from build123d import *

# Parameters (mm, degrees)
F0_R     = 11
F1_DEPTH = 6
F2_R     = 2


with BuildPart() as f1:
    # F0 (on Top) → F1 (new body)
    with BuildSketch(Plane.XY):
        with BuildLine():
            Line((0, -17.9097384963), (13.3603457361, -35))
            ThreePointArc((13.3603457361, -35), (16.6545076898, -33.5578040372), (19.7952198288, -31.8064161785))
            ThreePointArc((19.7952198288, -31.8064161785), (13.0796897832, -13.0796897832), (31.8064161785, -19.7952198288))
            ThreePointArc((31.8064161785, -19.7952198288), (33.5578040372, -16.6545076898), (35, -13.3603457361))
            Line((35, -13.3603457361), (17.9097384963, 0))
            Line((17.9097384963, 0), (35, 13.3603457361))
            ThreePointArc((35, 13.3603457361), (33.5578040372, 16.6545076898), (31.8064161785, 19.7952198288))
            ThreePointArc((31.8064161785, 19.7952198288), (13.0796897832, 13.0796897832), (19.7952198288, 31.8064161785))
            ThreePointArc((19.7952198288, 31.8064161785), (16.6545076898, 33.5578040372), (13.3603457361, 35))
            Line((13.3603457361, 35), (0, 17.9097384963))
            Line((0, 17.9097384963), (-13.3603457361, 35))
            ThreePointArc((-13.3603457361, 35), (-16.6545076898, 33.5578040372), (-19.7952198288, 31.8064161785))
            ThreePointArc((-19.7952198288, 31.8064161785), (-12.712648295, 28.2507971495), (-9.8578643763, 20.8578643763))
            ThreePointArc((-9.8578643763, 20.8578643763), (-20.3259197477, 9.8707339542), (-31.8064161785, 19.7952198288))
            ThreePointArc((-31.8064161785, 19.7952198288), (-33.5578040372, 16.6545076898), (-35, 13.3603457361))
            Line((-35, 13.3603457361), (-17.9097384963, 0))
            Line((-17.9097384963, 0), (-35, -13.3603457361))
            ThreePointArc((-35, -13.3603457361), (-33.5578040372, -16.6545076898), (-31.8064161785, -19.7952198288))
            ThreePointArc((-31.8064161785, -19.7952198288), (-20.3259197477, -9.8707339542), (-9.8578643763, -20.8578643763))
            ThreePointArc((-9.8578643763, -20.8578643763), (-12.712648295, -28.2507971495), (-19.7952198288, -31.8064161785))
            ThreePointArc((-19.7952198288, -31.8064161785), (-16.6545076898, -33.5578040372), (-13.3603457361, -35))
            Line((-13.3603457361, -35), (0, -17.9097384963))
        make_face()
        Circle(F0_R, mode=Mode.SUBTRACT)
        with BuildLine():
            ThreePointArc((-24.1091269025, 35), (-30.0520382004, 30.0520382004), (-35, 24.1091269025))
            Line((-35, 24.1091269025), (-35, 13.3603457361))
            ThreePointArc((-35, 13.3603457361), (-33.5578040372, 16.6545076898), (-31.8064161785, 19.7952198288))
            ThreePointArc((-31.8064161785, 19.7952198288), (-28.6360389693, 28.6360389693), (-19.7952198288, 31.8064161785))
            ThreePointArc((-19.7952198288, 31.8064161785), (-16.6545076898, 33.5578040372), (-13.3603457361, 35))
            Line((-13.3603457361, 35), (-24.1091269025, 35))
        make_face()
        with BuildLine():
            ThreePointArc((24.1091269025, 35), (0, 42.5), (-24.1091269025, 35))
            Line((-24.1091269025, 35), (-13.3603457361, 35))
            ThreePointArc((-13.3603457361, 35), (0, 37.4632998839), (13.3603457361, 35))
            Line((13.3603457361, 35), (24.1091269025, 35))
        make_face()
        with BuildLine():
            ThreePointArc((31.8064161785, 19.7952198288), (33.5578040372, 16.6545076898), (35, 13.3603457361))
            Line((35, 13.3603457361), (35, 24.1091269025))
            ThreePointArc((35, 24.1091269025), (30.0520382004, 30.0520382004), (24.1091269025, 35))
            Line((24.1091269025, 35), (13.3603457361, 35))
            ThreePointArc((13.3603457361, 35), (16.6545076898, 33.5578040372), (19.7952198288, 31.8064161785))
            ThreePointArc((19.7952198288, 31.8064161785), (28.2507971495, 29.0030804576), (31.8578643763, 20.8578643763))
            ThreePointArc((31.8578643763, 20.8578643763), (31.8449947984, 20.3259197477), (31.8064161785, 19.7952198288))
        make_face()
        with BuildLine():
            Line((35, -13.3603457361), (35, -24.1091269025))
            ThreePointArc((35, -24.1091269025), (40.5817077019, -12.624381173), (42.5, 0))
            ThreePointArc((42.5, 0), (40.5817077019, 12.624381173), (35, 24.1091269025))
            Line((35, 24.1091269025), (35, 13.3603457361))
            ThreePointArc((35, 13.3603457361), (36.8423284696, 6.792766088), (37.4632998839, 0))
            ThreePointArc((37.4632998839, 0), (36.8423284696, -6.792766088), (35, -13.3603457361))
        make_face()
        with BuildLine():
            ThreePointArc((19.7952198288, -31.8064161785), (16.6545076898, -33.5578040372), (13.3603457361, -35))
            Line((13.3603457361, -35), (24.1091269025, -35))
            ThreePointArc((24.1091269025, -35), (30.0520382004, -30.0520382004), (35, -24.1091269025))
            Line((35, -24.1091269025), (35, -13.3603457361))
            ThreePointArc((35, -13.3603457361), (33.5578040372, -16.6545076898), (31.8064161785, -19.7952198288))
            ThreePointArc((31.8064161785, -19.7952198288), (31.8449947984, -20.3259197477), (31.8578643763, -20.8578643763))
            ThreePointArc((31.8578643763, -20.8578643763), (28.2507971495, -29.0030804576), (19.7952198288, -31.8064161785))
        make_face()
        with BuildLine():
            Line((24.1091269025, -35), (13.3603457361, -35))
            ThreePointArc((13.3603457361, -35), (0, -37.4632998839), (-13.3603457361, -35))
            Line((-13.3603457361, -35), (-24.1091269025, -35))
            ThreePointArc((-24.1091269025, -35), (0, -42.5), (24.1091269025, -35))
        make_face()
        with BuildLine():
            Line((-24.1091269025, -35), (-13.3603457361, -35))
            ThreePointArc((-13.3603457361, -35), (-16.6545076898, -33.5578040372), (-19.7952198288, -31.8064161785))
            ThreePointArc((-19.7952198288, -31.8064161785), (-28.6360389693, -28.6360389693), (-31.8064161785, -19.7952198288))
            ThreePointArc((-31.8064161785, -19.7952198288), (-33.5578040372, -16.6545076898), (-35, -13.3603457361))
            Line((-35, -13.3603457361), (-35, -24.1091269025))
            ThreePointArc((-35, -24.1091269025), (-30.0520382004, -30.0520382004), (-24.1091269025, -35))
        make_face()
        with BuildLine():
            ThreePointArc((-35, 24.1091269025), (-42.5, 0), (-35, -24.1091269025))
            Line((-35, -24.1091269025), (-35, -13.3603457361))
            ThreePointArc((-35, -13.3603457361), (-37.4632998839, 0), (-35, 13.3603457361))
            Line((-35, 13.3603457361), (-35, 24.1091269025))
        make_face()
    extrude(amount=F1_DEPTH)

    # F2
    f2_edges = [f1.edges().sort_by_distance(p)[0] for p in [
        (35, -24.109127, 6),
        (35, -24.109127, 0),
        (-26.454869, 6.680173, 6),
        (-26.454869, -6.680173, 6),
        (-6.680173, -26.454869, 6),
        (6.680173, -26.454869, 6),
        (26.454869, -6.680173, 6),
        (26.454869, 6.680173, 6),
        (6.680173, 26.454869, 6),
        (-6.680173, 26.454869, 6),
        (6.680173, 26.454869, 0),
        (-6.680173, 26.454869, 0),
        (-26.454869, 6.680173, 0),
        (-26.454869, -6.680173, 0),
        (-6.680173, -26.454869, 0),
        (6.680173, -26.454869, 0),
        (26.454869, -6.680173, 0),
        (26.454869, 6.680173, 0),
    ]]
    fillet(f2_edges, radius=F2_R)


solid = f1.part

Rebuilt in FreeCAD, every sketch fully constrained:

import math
import FreeCAD as App
import Part
import Sketcher
from FreeCAD import Vector
Q = App.Units.Quantity


def edges_at(feature, points):
    """Names of the edges that pass closest to the given points."""
    edges = feature.Shape.Edges
    near = lambda p: min(range(len(edges)), key=lambda i: edges[i].distToShape(Part.Vertex(*p))[0])
    return sorted({f"Edge{near(p) + 1}" for p in points})

doc = App.newDocument("Part")
params = doc.addObject("Spreadsheet::Sheet", "Params")
for row, (alias, value) in enumerate([
    ("sketch1_diameter", "22 mm"),
    ("sketch1_radius", "42.5 mm"),
    ("pad1_length", "6 mm"),
    ("fillet_radius", "2 mm"),
], start=1):
    params.set(f"A{row}", alias)
    params.set(f"B{row}", "=" + value)
    params.setAlias(f"B{row}", alias)

body = doc.addObject("PartDesign::Body", "Body")

# Sketch on XY plane
sketch1 = body.newObject("Sketcher::SketchObject", "Sketch")
sketch1.AttachmentSupport = (doc.getObject("XY_Plane"), [""])
sketch1.MapMode = "FlatFace"
sketch1.addGeometry(Part.ArcOfCircle(Part.Circle(Vector(0, 0, 0), Vector(0, 0, 1), 42.5), math.radians(-145), math.radians(-125)), False)
sketch1.addGeometry(Part.ArcOfCircle(Part.Circle(Vector(0, 0, 0), Vector(0, 0, 1), 42.5), math.radians(-125), math.radians(-55)), False)
sketch1.addGeometry(Part.ArcOfCircle(Part.Circle(Vector(0, 0, 0), Vector(0, 0, 1), 42.5), math.radians(-55), math.radians(-35)), False)
sketch1.addGeometry(Part.ArcOfCircle(Part.Circle(Vector(0, 0, 0), Vector(0, 0, 1), 42.5), math.radians(-35), math.radians(0)), False)
sketch1.addGeometry(Part.ArcOfCircle(Part.Circle(Vector(0, 0, 0), Vector(0, 0, 1), 42.5), math.radians(0), math.radians(35)), False)
sketch1.addGeometry(Part.ArcOfCircle(Part.Circle(Vector(0, 0, 0), Vector(0, 0, 1), 42.5), math.radians(35), math.radians(55)), False)
sketch1.addGeometry(Part.ArcOfCircle(Part.Circle(Vector(0, 0, 0), Vector(0, 0, 1), 42.5), math.radians(55), math.radians(125)), False)
sketch1.addGeometry(Part.ArcOfCircle(Part.Circle(Vector(0, 0, 0), Vector(0, 0, 1), 42.5), math.radians(125), math.radians(145)), False)
sketch1.addGeometry(Part.ArcOfCircle(Part.Circle(Vector(0, 0, 0), Vector(0, 0, 1), 42.5), math.radians(145), math.radians(215)), False)
sketch1.addGeometry(Part.ArcOfCircle(Part.Circle(Vector(-20.9, -20.9, 0), Vector(0, 0, 1), 11), math.radians(-84), math.radians(0)), False)
sketch1.addGeometry(Part.ArcOfCircle(Part.Circle(Vector(-20.9, -20.9, 0), Vector(0, 0, 1), 11), math.radians(174), math.radians(276)), False)
sketch1.addGeometry(Part.ArcOfCircle(Part.Circle(Vector(-20.9, -20.9, 0), Vector(0, 0, 1), 11), math.radians(0), math.radians(174)), False)
sketch1.addGeometry(Part.LineSegment(Vector(-17.9, 0, 0), Vector(-35, -13.4, 0)), False)
sketch1.addGeometry(Part.ArcOfCircle(Part.Circle(Vector(0, 0, 0), Vector(0, 0, 1), 37.5), math.radians(159), math.radians(201)), False)
sketch1.addGeometry(Part.LineSegment(Vector(-35, 13.4, 0), Vector(-17.9, 0, 0)), False)
sketch1.addGeometry(Part.ArcOfCircle(Part.Circle(Vector(0, 0, 0), Vector(0, 0, 1), 37.5), math.radians(-111), math.radians(-69)), False)
sketch1.addGeometry(Part.LineSegment(Vector(-13.4, -35, 0), Vector(0, -17.9, 0)), False)
sketch1.addGeometry(Part.LineSegment(Vector(0, -17.9, 0), Vector(13.4, -35, 0)), False)
sketch1.addGeometry(Part.ArcOfCircle(Part.Circle(Vector(20.9, -20.9, 0), Vector(0, 0, 1), 11), math.radians(6), math.radians(264)), False)
sketch1.addGeometry(Part.ArcOfCircle(Part.Circle(Vector(20.9, -20.9, 0), Vector(0, 0, 1), 11), math.radians(0), math.radians(5.54)), False)
sketch1.addGeometry(Part.ArcOfCircle(Part.Circle(Vector(20.9, -20.9, 0), Vector(0, 0, 1), 11), math.radians(-96), math.radians(0)), False)
sketch1.addGeometry(Part.Circle(Vector(0, 0, 0), Vector(0, 0, 1), 11), False)
sketch1.addGeometry(Part.ArcOfCircle(Part.Circle(Vector(-20.9, 20.9, 0), Vector(0, 0, 1), 11), math.radians(-174), math.radians(0)), False)
sketch1.addGeometry(Part.ArcOfCircle(Part.Circle(Vector(-20.9, 20.9, 0), Vector(0, 0, 1), 11), math.radians(84), math.radians(186)), False)
sketch1.addGeometry(Part.ArcOfCircle(Part.Circle(Vector(-20.9, 20.9, 0), Vector(0, 0, 1), 11), math.radians(0), math.radians(84)), False)
sketch1.addGeometry(Part.ArcOfCircle(Part.Circle(Vector(0, 0, 0), Vector(0, 0, 1), 37.5), math.radians(69), math.radians(111)), False)
sketch1.addGeometry(Part.LineSegment(Vector(13.4, 35, 0), Vector(0, 17.9, 0)), False)
sketch1.addGeometry(Part.LineSegment(Vector(0, 17.9, 0), Vector(-13.4, 35, 0)), False)
sketch1.addGeometry(Part.ArcOfCircle(Part.Circle(Vector(0, 0, 0), Vector(0, 0, 1), 37.5), math.radians(-21), math.radians(0)), False)
sketch1.addGeometry(Part.LineSegment(Vector(35, -13.4, 0), Vector(17.9, 0, 0)), False)
sketch1.addGeometry(Part.LineSegment(Vector(17.9, 0, 0), Vector(35, 13.4, 0)), False)
sketch1.addGeometry(Part.ArcOfCircle(Part.Circle(Vector(0, 0, 0), Vector(0, 0, 1), 37.5), math.radians(0), math.radians(21)), False)
sketch1.addGeometry(Part.ArcOfCircle(Part.Circle(Vector(20.9, 20.9, 0), Vector(0, 0, 1), 11), math.radians(96), math.radians(354)), False)
sketch1.addGeometry(Part.ArcOfCircle(Part.Circle(Vector(20.9, 20.9, 0), Vector(0, 0, 1), 11), math.radians(0), math.radians(96)), False)
sketch1.addGeometry(Part.ArcOfCircle(Part.Circle(Vector(20.9, 20.9, 0), Vector(0, 0, 1), 11), math.radians(-5.54), math.radians(0)), False)
sketch1.addConstraint(Sketcher.Constraint("Tangent", 0, 2, 1, 1))
sketch1.addConstraint(Sketcher.Constraint("Tangent", 1, 2, 2, 1))
sketch1.addConstraint(Sketcher.Constraint("Tangent", 2, 2, 3, 1))
sketch1.addConstraint(Sketcher.Constraint("Tangent", 3, 2, 4, 1))
sketch1.addConstraint(Sketcher.Constraint("Tangent", 4, 2, 5, 1))
sketch1.addConstraint(Sketcher.Constraint("Tangent", 5, 2, 6, 1))
sketch1.addConstraint(Sketcher.Constraint("Tangent", 6, 2, 7, 1))
sketch1.addConstraint(Sketcher.Constraint("Tangent", 7, 2, 8, 1))
sketch1.addConstraint(Sketcher.Constraint("Tangent", 8, 2, 0, 1))
sketch1.addConstraint(Sketcher.Constraint("Tangent", 9, 1, 10, 2))
sketch1.addConstraint(Sketcher.Constraint("Tangent", 10, 1, 11, 2))
sketch1.addConstraint(Sketcher.Constraint("Tangent", 11, 1, 9, 2))
sketch1.addConstraint(Sketcher.Constraint("Coincident", 12, 2, 13, 2))
sketch1.addConstraint(Sketcher.Constraint("Coincident", 13, 1, 14, 1))
sketch1.addConstraint(Sketcher.Constraint("Coincident", 14, 2, 12, 1))
sketch1.addConstraint(Sketcher.Constraint("Coincident", 15, 1, 16, 1))
sketch1.addConstraint(Sketcher.Constraint("Coincident", 16, 2, 17, 1))
sketch1.addConstraint(Sketcher.Constraint("Coincident", 17, 2, 15, 2))
sketch1.addConstraint(Sketcher.Constraint("Tangent", 18, 1, 19, 2))
sketch1.addConstraint(Sketcher.Constraint("Tangent", 19, 1, 20, 2))
sketch1.addConstraint(Sketcher.Constraint("Tangent", 20, 1, 18, 2))
sketch1.addConstraint(Sketcher.Constraint("Tangent", 22, 1, 23, 2))
sketch1.addConstraint(Sketcher.Constraint("Tangent", 23, 1, 24, 2))
sketch1.addConstraint(Sketcher.Constraint("Tangent", 24, 1, 22, 2))
sketch1.addConstraint(Sketcher.Constraint("Coincident", 25, 1, 26, 1))
sketch1.addConstraint(Sketcher.Constraint("Coincident", 26, 2, 27, 1))
sketch1.addConstraint(Sketcher.Constraint("Coincident", 27, 2, 25, 2))
sketch1.addConstraint(Sketcher.Constraint("Coincident", 28, 1, 29, 1))
sketch1.addConstraint(Sketcher.Constraint("Coincident", 29, 2, 30, 1))
sketch1.addConstraint(Sketcher.Constraint("Coincident", 30, 2, 31, 2))
sketch1.addConstraint(Sketcher.Constraint("Tangent", 31, 1, 28, 2))
sketch1.addConstraint(Sketcher.Constraint("Tangent", 32, 1, 33, 2))
sketch1.addConstraint(Sketcher.Constraint("Tangent", 33, 1, 34, 2))
sketch1.addConstraint(Sketcher.Constraint("Tangent", 34, 1, 32, 2))
sketch1.addConstraint(Sketcher.Constraint("Coincident", 0, 3, -1, 1))
sketch1.addConstraint(Sketcher.Constraint("Coincident", 2, 3, -1, 1))
sketch1.addConstraint(Sketcher.Constraint("Coincident", 4, 3, -1, 1))
sketch1.addConstraint(Sketcher.Constraint("Coincident", 6, 3, -1, 1))
sketch1.addConstraint(Sketcher.Constraint("Coincident", 13, 3, -1, 1))
sketch1.addConstraint(Sketcher.Constraint("Coincident", 15, 3, -1, 1))
sketch1.addConstraint(Sketcher.Constraint("Coincident", 21, 3, -1, 1))
sketch1.addConstraint(Sketcher.Constraint("Coincident", 25, 3, -1, 1))
sketch1.addConstraint(Sketcher.Constraint("Coincident", 28, 3, -1, 1))
sketch1.addConstraint(Sketcher.Constraint("Equal", 13, 15))
sketch1.addConstraint(Sketcher.Constraint("Equal", 11, 18))
sketch1.addConstraint(Sketcher.Constraint("Equal", 20, 21))
sketch1.addConstraint(Sketcher.Constraint("Equal", 21, 22))
sketch1.addConstraint(Sketcher.Constraint("Equal", 15, 25))
sketch1.addConstraint(Sketcher.Constraint("Equal", 25, 28))
sketch1.addConstraint(Sketcher.Constraint("Equal", 28, 31))
sketch1.addConstraint(Sketcher.Constraint("Equal", 24, 32))
sketch1.addConstraint(Sketcher.Constraint("Symmetric", 18, 3, 22, 3, -1, 1))
sketch1.addConstraint(Sketcher.Constraint("Symmetric", 9, 3, 32, 3, -1, 1))
sketch1.addConstraint(Sketcher.Constraint("Symmetric", 16, 2, 26, 2, -1, 1))
sketch1.addConstraint(Sketcher.Constraint("Symmetric", 14, 2, 29, 2, -1, 1))
sketch1.addConstraint(Sketcher.Constraint("Symmetric", 9, 3, 18, 3, -2))
sketch1.addConstraint(Sketcher.Constraint("PointOnObject", 3, 2, -1))
sketch1.addConstraint(Sketcher.Constraint("PointOnObject", 14, 2, -1))
sketch1.addConstraint(Sketcher.Constraint("PointOnObject", 16, 2, -2))
sketch1.addConstraint(Sketcher.Constraint("PointOnObject", 31, 1, -1))
sketch1.addConstraint(Sketcher.Constraint("Perpendicular", 14, 16))
sketch1.addConstraint(Sketcher.Constraint("Perpendicular", 12, 17))
sketch1.addConstraint(Sketcher.Constraint("Parallel", 16, 26))
sketch1.addConstraint(Sketcher.Constraint("Parallel", 17, 27))
sketch1.addConstraint(Sketcher.Constraint("Perpendicular", 26, 29))
sketch1.addConstraint(Sketcher.Constraint("Perpendicular", 27, 30))
sketch1.addConstraint(Sketcher.Constraint("Horizontal", 0, 2, 1, 2))
sketch1.addConstraint(Sketcher.Constraint("Horizontal", 5, 2, 6, 2))
sketch1.addConstraint(Sketcher.Constraint("Horizontal", 4, 2, 7, 2))
sketch1.addConstraint(Sketcher.Constraint("Horizontal", 2, 2, 8, 2))
sketch1.addConstraint(Sketcher.Constraint("Horizontal", 20, 3, 11, 1))
sketch1.addConstraint(Sketcher.Constraint("Horizontal", 1, 2, 15, 1))
sketch1.addConstraint(Sketcher.Constraint("Horizontal", 15, 1, 17, 2))
sketch1.addConstraint(Sketcher.Constraint("Horizontal", 10, 1, 18, 1))
sketch1.addConstraint(Sketcher.Constraint("Horizontal", 11, 1, 19, 1))
sketch1.addConstraint(Sketcher.Constraint("Horizontal", 9, 1, 20, 1))
sketch1.addConstraint(Sketcher.Constraint("Horizontal", 34, 3, 24, 1))
sketch1.addConstraint(Sketcher.Constraint("Horizontal", 6, 2, 25, 1))
sketch1.addConstraint(Sketcher.Constraint("Horizontal", 23, 1, 32, 1))
sketch1.addConstraint(Sketcher.Constraint("Horizontal", 24, 1, 33, 1))
sketch1.addConstraint(Sketcher.Constraint("Horizontal", 22, 1, 34, 1))
sketch1.addConstraint(Sketcher.Constraint("Vertical", 2, 2, 4, 2))
sketch1.addConstraint(Sketcher.Constraint("Vertical", 8, 2, 12, 2))
sketch1.addConstraint(Sketcher.Constraint("Vertical", 10, 1, 22, 1))
sketch1.addConstraint(Sketcher.Constraint("Vertical", 9, 1, 23, 1))
sketch1.addConstraint(Sketcher.Constraint("Equal", 14, 16))
sketch1.addConstraint(Sketcher.Constraint("Diameter", 21, Q("22 mm")))
sketch1.addConstraint(Sketcher.Constraint("Radius", 0, Q("42.5 mm")))
sketch1.addConstraint(Sketcher.Constraint("DistanceY", 0, 2, -1, 1, Q("35 mm")))
sketch1.addConstraint(Sketcher.Constraint("Radius", 13, Q("37.4633 mm")))
sketch1.addConstraint(Sketcher.Constraint("Distance", 12, Q("21.692761 mm")))
sketch1.addConstraint(Sketcher.Constraint("DistanceX", 9, 1, -1, 1, Q("19.79522 mm")))
sketch1.addConstraint(Sketcher.Constraint("DistanceY", 10, 1, -1, 1, Q("19.79522 mm")))
sketch1.addConstraint(Sketcher.Constraint("DistanceX", 9, 3, -1, 1, Q("20.857864 mm")))
sketch1.addConstraint(Sketcher.Constraint("DistanceY", 9, 3, -1, 1, Q("20.857864 mm")))
sketch1.setExpression("Constraints[86]", "Params.sketch1_diameter")
sketch1.setExpression("Constraints[87]", "Params.sketch1_radius")
pad1 = body.newObject("PartDesign::Pad", "Pad")
pad1.Profile = sketch1
pad1.setExpression("Length", "Params.pad1_length")
doc.recompute()

fillet = body.newObject("PartDesign::Fillet", "Fillet")
fillet.Base = (pad1, edges_at(pad1, [
    (30.052, -30.052, 6),
    (30.052, -30.052, 0),
    (-26.455, 6.68, 6),
    (-26.455, -6.68, 6),
    (-6.68, -26.455, 6),
    (6.68, -26.455, 6),
    (26.455, -6.68, 6),
    (26.455, 6.68, 6),
    (6.68, 26.455, 6),
    (-6.68, 26.455, 6),
    (6.68, 26.455, 0),
    (-6.68, 26.455, 0),
    (-26.455, 6.68, 0),
    (-26.455, -6.68, 0),
    (-6.68, -26.455, 0),
    (6.68, -26.455, 0),
    (26.455, -6.68, 0),
    (26.455, 6.68, 0),
]))
fillet.setExpression("Radius", "Params.fillet_radius")

doc.recompute()
